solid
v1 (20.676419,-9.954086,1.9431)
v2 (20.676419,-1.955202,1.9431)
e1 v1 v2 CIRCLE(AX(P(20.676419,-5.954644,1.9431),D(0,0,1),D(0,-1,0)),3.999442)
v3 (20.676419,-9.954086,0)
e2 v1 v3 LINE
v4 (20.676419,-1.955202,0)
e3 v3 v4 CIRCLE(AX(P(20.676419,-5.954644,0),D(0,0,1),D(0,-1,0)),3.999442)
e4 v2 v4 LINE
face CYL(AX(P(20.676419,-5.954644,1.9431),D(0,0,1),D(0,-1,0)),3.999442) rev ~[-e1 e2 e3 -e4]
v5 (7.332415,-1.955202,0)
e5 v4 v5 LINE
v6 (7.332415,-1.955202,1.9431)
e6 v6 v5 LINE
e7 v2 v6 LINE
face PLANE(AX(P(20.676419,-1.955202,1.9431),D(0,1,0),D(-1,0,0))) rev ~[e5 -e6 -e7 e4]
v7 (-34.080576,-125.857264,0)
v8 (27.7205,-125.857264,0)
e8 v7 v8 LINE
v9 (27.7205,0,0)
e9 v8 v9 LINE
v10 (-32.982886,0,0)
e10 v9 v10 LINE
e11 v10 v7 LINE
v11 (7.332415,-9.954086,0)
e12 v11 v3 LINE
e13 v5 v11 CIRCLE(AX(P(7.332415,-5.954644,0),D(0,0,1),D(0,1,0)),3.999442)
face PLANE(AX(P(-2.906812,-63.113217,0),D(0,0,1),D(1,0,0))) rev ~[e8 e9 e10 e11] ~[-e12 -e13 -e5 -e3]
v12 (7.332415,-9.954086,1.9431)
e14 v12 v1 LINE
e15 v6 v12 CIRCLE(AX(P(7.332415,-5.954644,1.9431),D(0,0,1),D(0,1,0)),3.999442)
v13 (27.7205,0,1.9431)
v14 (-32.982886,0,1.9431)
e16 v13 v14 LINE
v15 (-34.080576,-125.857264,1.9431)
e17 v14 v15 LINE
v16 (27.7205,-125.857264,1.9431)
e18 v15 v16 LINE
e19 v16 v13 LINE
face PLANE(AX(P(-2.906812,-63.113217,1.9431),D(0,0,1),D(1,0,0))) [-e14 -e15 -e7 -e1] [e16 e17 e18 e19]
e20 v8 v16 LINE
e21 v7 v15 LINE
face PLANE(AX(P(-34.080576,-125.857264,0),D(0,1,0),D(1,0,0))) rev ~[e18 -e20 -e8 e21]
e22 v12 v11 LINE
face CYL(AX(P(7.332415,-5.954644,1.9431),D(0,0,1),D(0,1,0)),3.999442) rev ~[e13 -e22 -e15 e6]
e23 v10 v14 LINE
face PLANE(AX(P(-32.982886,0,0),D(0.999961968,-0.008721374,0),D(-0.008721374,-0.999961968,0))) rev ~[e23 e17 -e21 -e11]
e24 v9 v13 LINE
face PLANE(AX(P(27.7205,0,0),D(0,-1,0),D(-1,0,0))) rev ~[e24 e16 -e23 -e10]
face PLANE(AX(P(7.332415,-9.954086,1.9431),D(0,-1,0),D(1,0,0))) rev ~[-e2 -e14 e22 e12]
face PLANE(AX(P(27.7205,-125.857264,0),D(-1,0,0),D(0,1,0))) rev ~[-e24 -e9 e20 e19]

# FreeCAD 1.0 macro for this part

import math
import FreeCAD as App
import Part
import Sketcher

V = App.Vector
Q = App.Units.Quantity

doc = App.newDocument("Part")
body = doc.addObject("PartDesign::Body", "Body")

sketch1 = doc.addObject("Sketcher::SketchObject", "Sketch")
body.addObject(sketch1)
sketch1.AttachmentSupport = (doc.XY_Plane, [""])
sketch1.MapMode = "FlatFace"
sketch1.addGeometry([
    Part.LineSegment(V(28, 0, 0), V(-33, 0, 0)),
    Part.LineSegment(V(-33, 0, 0), V(-34, -126, 0)),
    Part.LineSegment(V(-34, -126, 0), V(28, -126, 0)),
    Part.LineSegment(V(28, -126, 0), V(28, 0, 0)),
], False)
sketch1.addConstraint([
    Sketcher.Constraint("Coincident", 0, 2, 1, 1),
    Sketcher.Constraint("Coincident", 1, 2, 2, 1),
    Sketcher.Constraint("Coincident", 2, 2, 3, 1),
    Sketcher.Constraint("Coincident", 3, 2, 0, 1),
    Sketcher.Constraint("Horizontal", 0),
    Sketcher.Constraint("Horizontal", 2),
    Sketcher.Constraint("Vertical", 3),
    Sketcher.Constraint("PointOnObject", 0, 2, -1),
    Sketcher.Constraint("DistanceX", -1, 1, 2, 2, Q("27.7205 mm")),
    Sketcher.Constraint("Distance", 1, Q("125.862051 mm")),
    Sketcher.Constraint("DistanceX", 0, 2, 0, 1, Q("60.703386 mm")),
    Sketcher.Constraint("DistanceX", 2, 1, 2, 2, Q("61.801076 mm")),
])
pad1 = doc.addObject("PartDesign::Pad", "Pad")
body.addObject(pad1)
pad1.Profile = sketch1
pad1.Length = Q("0.0765 in")

sketch2 = doc.addObject("Sketcher::SketchObject", "Sketch001")
body.addObject(sketch2)
sketch2.AttachmentSupport = (doc.XY_Plane, [""])
sketch2.MapMode = "FlatFace"
sketch2.AttachmentOffset = App.Placement(V(0, 0, 0.0765 * 25.4), App.Rotation())
sketch2.addGeometry([
    Part.ArcOfCircle(Part.Circle(V(7.3, -6, 0), V(0, 0, 1), 4), math.radians(90), math.radians(270)),
    Part.LineSegment(V(7.3, -10, 0), V(20.7, -10, 0)),
    Part.ArcOfCircle(Part.Circle(V(20.7, -6, 0), V(0, 0, 1), 4), math.radians(-90), math.radians(90)),
    Part.LineSegment(V(20.7, -2, 0), V(7.3, -2, 0)),
], False)
sketch2.addConstraint([
    Sketcher.Constraint("Tangent", 0, 2, 1, 1),
    Sketcher.Constraint("Tangent", 1, 2, 2, 1),
    Sketcher.Constraint("Tangent", 2, 2, 3, 1),
    Sketcher.Constraint("Tangent", 3, 2, 0, 1),
    Sketcher.Constraint("Horizontal", 1),
    Sketcher.Constraint("Horizontal", 3),
    Sketcher.Constraint("Radius", 0, Q("3.999442 mm")),
    Sketcher.Constraint("DistanceY", 2, 2, -1, 1, Q("1.955202 mm")),
    Sketcher.Constraint("DistanceX", 1, 1, 1, 2, Q("13.344004 mm")),
    Sketcher.Constraint("DistanceX", -1, 1, 2, 3, Q("20.676419 mm")),
])
pocket1 = doc.addObject("PartDesign::Pocket", "Pocket")
body.addObject(pocket1)
pocket1.Profile = sketch2
pocket1.Length = Q("1 in")

doc.recompute()
